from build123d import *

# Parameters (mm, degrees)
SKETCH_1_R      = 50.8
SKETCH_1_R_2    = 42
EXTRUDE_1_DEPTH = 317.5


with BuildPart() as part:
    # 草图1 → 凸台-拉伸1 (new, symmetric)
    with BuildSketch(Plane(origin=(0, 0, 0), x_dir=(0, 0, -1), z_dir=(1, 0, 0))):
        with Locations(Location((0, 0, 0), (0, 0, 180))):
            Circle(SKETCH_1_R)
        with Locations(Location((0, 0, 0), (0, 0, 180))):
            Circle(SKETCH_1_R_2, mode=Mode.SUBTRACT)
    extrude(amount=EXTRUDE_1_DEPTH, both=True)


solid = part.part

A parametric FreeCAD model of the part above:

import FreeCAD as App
import Part
import Sketcher
from FreeCAD import Vector
Q = App.Units.Quantity

doc = App.newDocument("Part")
body = doc.addObject("PartDesign::Body", "Body")

sketch1 = body.newObject("Sketcher::SketchObject", "Sketch")
sketch1.AttachmentSupport = (doc.getObject("YZ_Plane"), [""])
sketch1.MapMode = "FlatFace"
sketch1.addGeometry([
    Part.Circle(Vector(0, 0, 0), Vector(0, 0, 1), 50.8),
    Part.Circle(Vector(0, 0, 0), Vector(0, 0, 1), 42),
], False)
sketch1.addConstraint([
    Sketcher.Constraint("Coincident", 0, 3, -1, 1),
    Sketcher.Constraint("Coincident", 1, 3, -1, 1),
    Sketcher.Constraint("Diameter", 0, Q("4 in")),
    Sketcher.Constraint("Diameter", 1, Q("84 mm")),
])
pad1 = body.newObject("PartDesign::Pad", "Pad")
pad1.Profile = sketch1
pad1.Length = Q("25 in")
pad1.Midplane = True

doc.recompute()
